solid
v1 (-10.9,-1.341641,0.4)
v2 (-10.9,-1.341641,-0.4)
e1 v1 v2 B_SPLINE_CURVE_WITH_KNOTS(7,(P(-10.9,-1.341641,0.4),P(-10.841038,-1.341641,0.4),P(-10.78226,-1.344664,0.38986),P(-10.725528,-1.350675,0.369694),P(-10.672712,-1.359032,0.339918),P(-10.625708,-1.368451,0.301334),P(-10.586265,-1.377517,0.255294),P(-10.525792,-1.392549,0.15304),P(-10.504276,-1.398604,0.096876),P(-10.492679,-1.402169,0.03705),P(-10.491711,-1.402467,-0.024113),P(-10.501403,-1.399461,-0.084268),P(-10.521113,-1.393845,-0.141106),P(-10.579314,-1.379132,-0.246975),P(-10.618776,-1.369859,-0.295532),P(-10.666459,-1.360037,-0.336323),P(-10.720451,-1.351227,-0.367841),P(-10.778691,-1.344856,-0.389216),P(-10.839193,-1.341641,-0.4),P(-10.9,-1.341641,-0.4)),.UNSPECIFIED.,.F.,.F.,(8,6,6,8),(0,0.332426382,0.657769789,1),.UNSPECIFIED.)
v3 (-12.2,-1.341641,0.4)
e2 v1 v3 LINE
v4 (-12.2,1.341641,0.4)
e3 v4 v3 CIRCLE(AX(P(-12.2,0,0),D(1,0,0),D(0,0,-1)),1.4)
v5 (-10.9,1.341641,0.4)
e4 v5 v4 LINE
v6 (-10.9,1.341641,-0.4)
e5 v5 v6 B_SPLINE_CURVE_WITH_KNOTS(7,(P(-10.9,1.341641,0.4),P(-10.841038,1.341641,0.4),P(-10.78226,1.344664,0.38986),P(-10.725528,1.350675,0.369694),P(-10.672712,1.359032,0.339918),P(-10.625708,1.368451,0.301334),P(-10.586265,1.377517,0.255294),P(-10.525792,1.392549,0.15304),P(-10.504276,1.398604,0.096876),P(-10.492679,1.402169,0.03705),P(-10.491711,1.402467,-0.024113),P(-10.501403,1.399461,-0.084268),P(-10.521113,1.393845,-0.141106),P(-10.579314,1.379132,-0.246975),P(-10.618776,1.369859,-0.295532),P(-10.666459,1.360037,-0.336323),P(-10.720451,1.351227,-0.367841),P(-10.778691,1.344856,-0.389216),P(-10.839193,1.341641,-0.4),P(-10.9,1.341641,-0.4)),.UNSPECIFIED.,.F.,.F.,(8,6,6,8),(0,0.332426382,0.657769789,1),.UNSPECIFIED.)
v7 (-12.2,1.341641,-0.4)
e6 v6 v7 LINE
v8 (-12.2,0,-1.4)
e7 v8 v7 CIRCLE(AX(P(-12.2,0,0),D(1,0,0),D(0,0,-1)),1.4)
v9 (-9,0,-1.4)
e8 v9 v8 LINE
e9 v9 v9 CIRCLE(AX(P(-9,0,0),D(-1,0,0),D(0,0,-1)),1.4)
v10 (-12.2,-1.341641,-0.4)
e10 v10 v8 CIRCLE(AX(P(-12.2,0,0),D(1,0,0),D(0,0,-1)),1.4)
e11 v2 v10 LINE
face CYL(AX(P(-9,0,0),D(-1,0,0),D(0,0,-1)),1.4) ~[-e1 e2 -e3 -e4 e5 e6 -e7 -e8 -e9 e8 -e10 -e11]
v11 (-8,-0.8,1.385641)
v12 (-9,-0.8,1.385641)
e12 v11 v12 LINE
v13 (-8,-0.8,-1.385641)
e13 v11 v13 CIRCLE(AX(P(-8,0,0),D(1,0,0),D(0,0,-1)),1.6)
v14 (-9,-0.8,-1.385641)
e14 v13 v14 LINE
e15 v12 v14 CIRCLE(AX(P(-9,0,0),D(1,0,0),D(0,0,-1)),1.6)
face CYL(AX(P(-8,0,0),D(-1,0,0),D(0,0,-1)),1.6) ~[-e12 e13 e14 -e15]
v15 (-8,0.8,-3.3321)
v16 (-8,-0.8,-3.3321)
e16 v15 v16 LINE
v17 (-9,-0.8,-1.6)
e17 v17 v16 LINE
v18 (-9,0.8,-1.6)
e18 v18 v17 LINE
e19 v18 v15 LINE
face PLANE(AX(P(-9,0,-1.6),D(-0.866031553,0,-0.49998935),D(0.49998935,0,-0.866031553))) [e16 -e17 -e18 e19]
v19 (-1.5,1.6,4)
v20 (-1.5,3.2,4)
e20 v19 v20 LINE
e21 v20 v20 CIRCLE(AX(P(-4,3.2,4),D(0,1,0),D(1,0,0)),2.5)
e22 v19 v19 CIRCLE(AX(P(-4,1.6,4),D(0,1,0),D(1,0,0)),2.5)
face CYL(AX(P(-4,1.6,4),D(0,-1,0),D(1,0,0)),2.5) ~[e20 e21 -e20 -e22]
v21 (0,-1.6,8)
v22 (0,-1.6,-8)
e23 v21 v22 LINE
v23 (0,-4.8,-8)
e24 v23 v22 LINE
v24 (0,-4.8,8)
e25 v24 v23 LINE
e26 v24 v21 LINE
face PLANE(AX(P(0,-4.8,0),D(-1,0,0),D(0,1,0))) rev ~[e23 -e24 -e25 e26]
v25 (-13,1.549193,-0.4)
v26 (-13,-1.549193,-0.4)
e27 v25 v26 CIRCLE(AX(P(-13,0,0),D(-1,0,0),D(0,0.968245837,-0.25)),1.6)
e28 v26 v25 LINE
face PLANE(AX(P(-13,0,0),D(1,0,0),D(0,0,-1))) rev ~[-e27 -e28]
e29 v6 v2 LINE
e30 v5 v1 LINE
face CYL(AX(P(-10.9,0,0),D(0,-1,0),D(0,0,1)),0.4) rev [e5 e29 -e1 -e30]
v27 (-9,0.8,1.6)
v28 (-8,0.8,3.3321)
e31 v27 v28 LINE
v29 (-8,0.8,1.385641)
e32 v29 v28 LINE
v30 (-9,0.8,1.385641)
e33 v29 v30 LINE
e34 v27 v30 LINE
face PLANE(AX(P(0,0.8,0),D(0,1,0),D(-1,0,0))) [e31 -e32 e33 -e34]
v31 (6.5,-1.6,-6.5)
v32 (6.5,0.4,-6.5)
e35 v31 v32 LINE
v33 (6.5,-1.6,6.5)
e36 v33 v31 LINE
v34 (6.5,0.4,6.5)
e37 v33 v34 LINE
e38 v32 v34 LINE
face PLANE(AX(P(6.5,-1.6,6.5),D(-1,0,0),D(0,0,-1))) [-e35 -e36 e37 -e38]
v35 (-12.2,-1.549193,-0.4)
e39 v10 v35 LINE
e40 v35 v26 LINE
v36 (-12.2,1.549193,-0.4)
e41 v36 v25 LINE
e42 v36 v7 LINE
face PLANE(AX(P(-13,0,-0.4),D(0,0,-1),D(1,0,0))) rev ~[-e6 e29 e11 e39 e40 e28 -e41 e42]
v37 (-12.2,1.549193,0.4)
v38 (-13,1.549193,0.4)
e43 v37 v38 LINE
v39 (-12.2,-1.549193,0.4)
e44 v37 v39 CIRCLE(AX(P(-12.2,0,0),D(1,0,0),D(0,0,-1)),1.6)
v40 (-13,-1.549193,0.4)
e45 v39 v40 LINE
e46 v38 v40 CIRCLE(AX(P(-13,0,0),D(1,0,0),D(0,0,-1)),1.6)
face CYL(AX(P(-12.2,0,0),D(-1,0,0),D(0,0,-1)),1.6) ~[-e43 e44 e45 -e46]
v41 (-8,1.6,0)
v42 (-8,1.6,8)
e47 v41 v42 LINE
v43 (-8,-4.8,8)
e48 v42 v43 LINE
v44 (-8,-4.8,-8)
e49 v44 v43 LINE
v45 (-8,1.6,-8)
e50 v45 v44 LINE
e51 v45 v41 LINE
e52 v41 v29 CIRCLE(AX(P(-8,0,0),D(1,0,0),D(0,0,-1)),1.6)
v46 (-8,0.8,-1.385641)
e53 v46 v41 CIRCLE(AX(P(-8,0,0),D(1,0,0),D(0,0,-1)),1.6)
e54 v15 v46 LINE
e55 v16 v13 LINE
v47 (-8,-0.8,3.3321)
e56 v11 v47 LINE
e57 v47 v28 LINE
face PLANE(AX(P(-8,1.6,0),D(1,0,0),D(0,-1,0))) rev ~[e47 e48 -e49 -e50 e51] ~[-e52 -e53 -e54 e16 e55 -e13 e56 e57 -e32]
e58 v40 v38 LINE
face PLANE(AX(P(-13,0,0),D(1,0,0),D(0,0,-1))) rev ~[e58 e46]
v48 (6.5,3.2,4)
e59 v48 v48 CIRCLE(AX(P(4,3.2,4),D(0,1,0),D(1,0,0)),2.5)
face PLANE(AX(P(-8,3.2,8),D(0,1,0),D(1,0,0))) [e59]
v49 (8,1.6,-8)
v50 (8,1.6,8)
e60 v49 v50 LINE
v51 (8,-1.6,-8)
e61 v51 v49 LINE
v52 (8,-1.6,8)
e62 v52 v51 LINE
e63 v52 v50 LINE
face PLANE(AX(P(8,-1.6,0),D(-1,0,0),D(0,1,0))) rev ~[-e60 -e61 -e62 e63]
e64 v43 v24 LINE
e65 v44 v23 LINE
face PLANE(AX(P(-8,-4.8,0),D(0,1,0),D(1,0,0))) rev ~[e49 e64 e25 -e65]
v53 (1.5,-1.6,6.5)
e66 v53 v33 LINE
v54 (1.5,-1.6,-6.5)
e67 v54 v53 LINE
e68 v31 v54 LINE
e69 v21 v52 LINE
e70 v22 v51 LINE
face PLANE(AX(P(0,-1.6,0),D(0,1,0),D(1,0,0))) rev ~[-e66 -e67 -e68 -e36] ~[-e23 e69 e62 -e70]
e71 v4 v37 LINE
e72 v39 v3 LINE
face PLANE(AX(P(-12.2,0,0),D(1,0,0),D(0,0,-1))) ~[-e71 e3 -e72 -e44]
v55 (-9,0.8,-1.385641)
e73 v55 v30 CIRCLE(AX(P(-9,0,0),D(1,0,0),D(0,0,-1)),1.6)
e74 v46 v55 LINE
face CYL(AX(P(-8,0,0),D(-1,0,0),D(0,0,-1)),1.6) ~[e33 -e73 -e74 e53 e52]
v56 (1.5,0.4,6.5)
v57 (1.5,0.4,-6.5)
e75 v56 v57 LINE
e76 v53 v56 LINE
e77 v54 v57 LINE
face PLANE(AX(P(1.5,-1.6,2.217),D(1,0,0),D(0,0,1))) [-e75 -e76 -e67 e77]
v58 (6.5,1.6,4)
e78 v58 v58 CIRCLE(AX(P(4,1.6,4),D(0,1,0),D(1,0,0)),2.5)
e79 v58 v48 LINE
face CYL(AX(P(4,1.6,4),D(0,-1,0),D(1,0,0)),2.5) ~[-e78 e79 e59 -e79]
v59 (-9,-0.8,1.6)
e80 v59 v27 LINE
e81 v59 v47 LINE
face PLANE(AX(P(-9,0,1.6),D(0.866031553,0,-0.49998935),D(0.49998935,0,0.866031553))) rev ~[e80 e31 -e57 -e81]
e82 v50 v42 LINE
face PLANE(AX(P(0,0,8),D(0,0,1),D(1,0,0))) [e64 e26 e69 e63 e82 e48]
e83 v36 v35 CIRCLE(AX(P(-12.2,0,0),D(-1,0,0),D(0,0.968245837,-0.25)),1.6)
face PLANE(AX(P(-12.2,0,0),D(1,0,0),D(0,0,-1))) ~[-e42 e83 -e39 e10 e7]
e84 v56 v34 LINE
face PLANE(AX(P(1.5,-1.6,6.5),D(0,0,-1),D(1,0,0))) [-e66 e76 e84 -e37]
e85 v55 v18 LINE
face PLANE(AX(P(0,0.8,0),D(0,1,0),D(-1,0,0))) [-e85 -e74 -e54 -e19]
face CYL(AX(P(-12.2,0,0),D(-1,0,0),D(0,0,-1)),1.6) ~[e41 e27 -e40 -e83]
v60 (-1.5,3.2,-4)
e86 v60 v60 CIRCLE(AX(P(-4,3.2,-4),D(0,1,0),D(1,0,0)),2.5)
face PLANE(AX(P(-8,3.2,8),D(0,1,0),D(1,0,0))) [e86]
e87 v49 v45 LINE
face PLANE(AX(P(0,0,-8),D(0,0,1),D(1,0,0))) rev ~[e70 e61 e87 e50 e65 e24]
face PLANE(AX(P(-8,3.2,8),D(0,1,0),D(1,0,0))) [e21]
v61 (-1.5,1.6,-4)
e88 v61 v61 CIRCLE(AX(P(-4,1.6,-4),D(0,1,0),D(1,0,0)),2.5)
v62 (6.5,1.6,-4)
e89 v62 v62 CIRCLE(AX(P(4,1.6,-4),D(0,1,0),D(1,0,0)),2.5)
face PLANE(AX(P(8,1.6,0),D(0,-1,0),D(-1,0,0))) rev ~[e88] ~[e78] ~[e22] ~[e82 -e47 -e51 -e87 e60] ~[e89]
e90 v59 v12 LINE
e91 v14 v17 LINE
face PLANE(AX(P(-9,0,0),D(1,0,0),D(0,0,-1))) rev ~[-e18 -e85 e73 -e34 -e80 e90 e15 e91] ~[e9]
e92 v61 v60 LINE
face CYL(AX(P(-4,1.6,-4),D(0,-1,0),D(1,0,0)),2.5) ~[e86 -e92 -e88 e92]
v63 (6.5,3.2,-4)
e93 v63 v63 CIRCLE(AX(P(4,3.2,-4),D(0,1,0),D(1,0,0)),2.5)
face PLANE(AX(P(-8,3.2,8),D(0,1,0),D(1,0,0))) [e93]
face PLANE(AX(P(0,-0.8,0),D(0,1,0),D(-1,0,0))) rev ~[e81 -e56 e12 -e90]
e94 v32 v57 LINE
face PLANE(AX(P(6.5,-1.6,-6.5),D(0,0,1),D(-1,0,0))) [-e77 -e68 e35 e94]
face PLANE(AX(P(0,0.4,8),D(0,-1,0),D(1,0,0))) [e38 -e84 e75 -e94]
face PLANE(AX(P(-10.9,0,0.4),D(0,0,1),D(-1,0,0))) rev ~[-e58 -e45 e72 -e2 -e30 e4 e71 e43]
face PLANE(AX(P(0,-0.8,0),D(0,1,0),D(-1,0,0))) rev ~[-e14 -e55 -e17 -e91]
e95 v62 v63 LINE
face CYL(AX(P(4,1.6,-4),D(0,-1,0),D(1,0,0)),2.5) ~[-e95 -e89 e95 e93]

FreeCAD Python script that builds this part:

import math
import FreeCAD as App
import Part
import Sketcher
from FreeCAD import Vector
Q = App.Units.Quantity

doc = App.newDocument("Part")
body = doc.addObject("PartDesign::Body", "Body")

sketch1 = body.newObject("Sketcher::SketchObject", "Sketch")
sketch1.AttachmentSupport = (doc.getObject("XY_Plane"), [""])
sketch1.MapMode = "FlatFace"
sketch1.addGeometry(Part.LineSegment(Vector(8, -1.6, 0), Vector(8, 1.6, 0)), False)
sketch1.addGeometry(Part.LineSegment(Vector(8, 1.6, 0), Vector(-8, 1.6, 0)), False)
sketch1.addGeometry(Part.LineSegment(Vector(-8, 1.6, 0), Vector(-8, -4.8, 0)), False)
sketch1.addGeometry(Part.LineSegment(Vector(-8, -4.8, 0), Vector(0, -4.8, 0)), False)
sketch1.addGeometry(Part.LineSegment(Vector(0, -4.8, 0), Vector(0, -1.6, 0)), False)
sketch1.addGeometry(Part.LineSegment(Vector(0, -1.6, 0), Vector(8, -1.6, 0)), False)
sketch1.addConstraint(Sketcher.Constraint("Coincident", 0, 2, 1, 1))
sketch1.addConstraint(Sketcher.Constraint("Coincident", 1, 2, 2, 1))
sketch1.addConstraint(Sketcher.Constraint("Coincident", 2, 2, 3, 1))
sketch1.addConstraint(Sketcher.Constraint("Coincident", 3, 2, 4, 1))
sketch1.addConstraint(Sketcher.Constraint("Coincident", 4, 2, 5, 1))
sketch1.addConstraint(Sketcher.Constraint("Coincident", 5, 2, 0, 1))
sketch1.addConstraint(Sketcher.Constraint("Vertical", 0))
sketch1.addConstraint(Sketcher.Constraint("Horizontal", 1))
sketch1.addConstraint(Sketcher.Constraint("Vertical", 2))
sketch1.addConstraint(Sketcher.Constraint("Horizontal", 3))
sketch1.addConstraint(Sketcher.Constraint("Vertical", 4))
sketch1.addConstraint(Sketcher.Constraint("Horizontal", 5))
sketch1.addConstraint(Sketcher.Constraint("Symmetric", 1, 2, 5, 2, -1, 1))
sketch1.addConstraint(Sketcher.Constraint("PointOnObject", 3, 2, -2))
sketch1.addConstraint(Sketcher.Constraint("Equal", 0, 4))
sketch1.addConstraint(Sketcher.Constraint("DistanceX", 1, 2, 1, 1, 16.0))
sketch1.addConstraint(Sketcher.Constraint("DistanceY", 0, 1, 0, 2, 3.2))
pad1 = body.newObject("PartDesign::Pad", "Pad")
pad1.Profile = sketch1
pad1.Length = 16
pad1.Midplane = True

sketch2 = body.newObject("Sketcher::SketchObject", "Sketch001")
sketch2.AttachmentSupport = (doc.getObject("XZ_Plane"), [""])
sketch2.MapMode = "FlatFace"
sketch2.AttachmentOffset = App.Placement(Vector(0, 0, -1.6), App.Rotation())
sketch2.addGeometry(Part.Circle(Vector(-4, -4, 0), Vector(0, 0, 1), 2.5), False)
sketch2.addGeometry(Part.Circle(Vector(4, -4, 0), Vector(0, 0, 1), 2.5), False)
sketch2.addGeometry(Part.Circle(Vector(4, 4, 0), Vector(0, 0, 1), 2.5), False)
sketch2.addGeometry(Part.Circle(Vector(-4, 4, 0), Vector(0, 0, 1), 2.5), False)
sketch2.addConstraint(Sketcher.Constraint("Equal", 0, 1))
sketch2.addConstraint(Sketcher.Constraint("Equal", 1, 2))
sketch2.addConstraint(Sketcher.Constraint("Equal", 2, 3))
sketch2.addConstraint(Sketcher.Constraint("Symmetric", 0, 3, 2, 3, -1, 1))
sketch2.addConstraint(Sketcher.Constraint("Symmetric", 1, 3, 3, 3, -1, 1))
sketch2.addConstraint(Sketcher.Constraint("Symmetric", 0, 3, 1, 3, -2))
sketch2.addConstraint(Sketcher.Constraint("Diameter", 0, 5.0))
sketch2.addConstraint(Sketcher.Constraint("DistanceX", 0, 3, 1, 3, 8.0))
sketch2.addConstraint(Sketcher.Constraint("DistanceY", 1, 3, 2, 3, 8.0))
pad2 = body.newObject("PartDesign::Pad", "Pad001")
pad2.Profile = sketch2
pad2.Length = 1.6
pad2.Reversed = True

sketch3 = body.newObject("Sketcher::SketchObject", "Sketch002")
sketch3.AttachmentSupport = (doc.getObject("XZ_Plane"), [""])
sketch3.MapMode = "FlatFace"
sketch3.addGeometry(Part.LineSegment(Vector(-13, 0, 0), Vector(-8, 0, 0)), False)
sketch3.addGeometry(Part.LineSegment(Vector(-8, 0, 0), Vector(-8, -1.6, 0)), False)
sketch3.addGeometry(Part.LineSegment(Vector(-8, -1.6, 0), Vector(-9, -1.6, 0)), False)
sketch3.addGeometry(Part.LineSegment(Vector(-9, -1.6, 0), Vector(-9, -1.4, 0)), False)
sketch3.addGeometry(Part.LineSegment(Vector(-9, -1.4, 0), Vector(-12.2, -1.4, 0)), False)
sketch3.addGeometry(Part.LineSegment(Vector(-12.2, -1.4, 0), Vector(-12.2, -1.6, 0)), False)
sketch3.addGeometry(Part.LineSegment(Vector(-12.2, -1.6, 0), Vector(-13, -1.6, 0)), False)
sketch3.addGeometry(Part.LineSegment(Vector(-13, -1.6, 0), Vector(-13, 0, 0)), False)
sketch3.addConstraint(Sketcher.Constraint("Coincident", 0, 2, 1, 1))
sketch3.addConstraint(Sketcher.Constraint("Coincident", 1, 2, 2, 1))
sketch3.addConstraint(Sketcher.Constraint("Coincident", 2, 2, 3, 1))
sketch3.addConstraint(Sketcher.Constraint("Coincident", 3, 2, 4, 1))
sketch3.addConstraint(Sketcher.Constraint("Coincident", 4, 2, 5, 1))
sketch3.addConstraint(Sketcher.Constraint("Coincident", 5, 2, 6, 1))
sketch3.addConstraint(Sketcher.Constraint("Coincident", 6, 2, 7, 1))
sketch3.addConstraint(Sketcher.Constraint("Coincident", 7, 2, 0, 1))
sketch3.addConstraint(Sketcher.Constraint("Horizontal", 0))
sketch3.addConstraint(Sketcher.Constraint("Vertical", 1))
sketch3.addConstraint(Sketcher.Constraint("Horizontal", 2))
sketch3.addConstraint(Sketcher.Constraint("Vertical", 3))
sketch3.addConstraint(Sketcher.Constraint("Horizontal", 4))
sketch3.addConstraint(Sketcher.Constraint("Vertical", 5))
sketch3.addConstraint(Sketcher.Constraint("Horizontal", 6))
sketch3.addConstraint(Sketcher.Constraint("Vertical", 7))
sketch3.addConstraint(Sketcher.Constraint("PointOnObject", 0, 2, -1))
sketch3.addConstraint(Sketcher.Constraint("Horizontal", 2, 2, 5, 2))
sketch3.addConstraint(Sketcher.Constraint("DistanceX", 0, 1, 0, 2, 5.0))
sketch3.addConstraint(Sketcher.Constraint("DistanceX", 4, 2, 4, 1, 3.2))
sketch3.addConstraint(Sketcher.Constraint("DistanceX", 6, 2, 6, 1, 0.8))
sketch3.addConstraint(Sketcher.Constraint("DistanceY", 1, 2, 1, 1, 1.6))
sketch3.addConstraint(Sketcher.Constraint("DistanceY", 3, 1, 3, 2, 0.2))
sketch3.addConstraint(Sketcher.Constraint("DistanceX", 0, 2, -1, 1, 8.0))
revolution = body.newObject("PartDesign::Revolution", "Revolution")
revolution.Profile = sketch3
revolution.ReferenceAxis = (sketch3, ["H_Axis"])
revolution.Angle = 360

sketch4 = body.newObject("Sketcher::SketchObject", "Sketch003")
sketch4.AttachmentSupport = (doc.getObject("XZ_Plane"), [""])
sketch4.MapMode = "FlatFace"
sketch4.addGeometry(Part.LineSegment(Vector(-9, -1.6, 0), Vector(-9, 1.6, 0)), False)
sketch4.addGeometry(Part.LineSegment(Vector(-9, 1.6, 0), Vector(-8, 3.3, 0)), False)
sketch4.addGeometry(Part.LineSegment(Vector(-8, 3.3, 0), Vector(-8, -3.3, 0)), False)
sketch4.addGeometry(Part.LineSegment(Vector(-8, -3.3, 0), Vector(-9, -1.6, 0)), False)
sketch4.addConstraint(Sketcher.Constraint("Coincident", 0, 2, 1, 1))
sketch4.addConstraint(Sketcher.Constraint("Coincident", 1, 2, 2, 1))
sketch4.addConstraint(Sketcher.Constraint("Coincident", 2, 2, 3, 1))
sketch4.addConstraint(Sketcher.Constraint("Coincident", 3, 2, 0, 1))
sketch4.addConstraint(Sketcher.Constraint("Vertical", 0))
sketch4.addConstraint(Sketcher.Constraint("Vertical", 2))
sketch4.addConstraint(Sketcher.Constraint("Equal", 1, 3))
sketch4.addConstraint(Sketcher.Constraint("Angle", 1, Q("60.0007 deg")))
sketch4.addConstraint(Sketcher.Constraint("Distance", 1, 2.0))
sketch4.addConstraint(Sketcher.Constraint("DistanceY", 0, 1, 0, 2, 3.2))
sketch4.addConstraint(Sketcher.Constraint("DistanceX", 0, 2, -1, 1, 9.0))
sketch4.addConstraint(Sketcher.Constraint("DistanceY", -1, 1, 0, 2, 1.6))
pad3 = body.newObject("PartDesign::Pad", "Pad002")
pad3.Profile = sketch4
pad3.Length = 1.6
pad3.Midplane = True

sketch5 = body.newObject("Sketcher::SketchObject", "Sketch004")
sketch5.AttachmentSupport = (doc.getObject("XZ_Plane"), [""])
sketch5.MapMode = "FlatFace"
sketch5.addGeometry(Part.LineSegment(Vector(-10.9, -0.4, 0), Vector(-13, -0.4, 0)), False)
sketch5.addGeometry(Part.LineSegment(Vector(-13, -0.4, 0), Vector(-13, 0.4, 0)), False)
sketch5.addGeometry(Part.LineSegment(Vector(-13, 0.4, 0), Vector(-10.9, 0.4, 0)), False)
sketch5.addGeometry(Part.ArcOfCircle(Part.Circle(Vector(-10.9, 0, 0), Vector(0, 0, 1), 0.4), math.radians(-90), math.radians(90)), False)
sketch5.addConstraint(Sketcher.Constraint("Coincident", 0, 2, 1, 1))
sketch5.addConstraint(Sketcher.Constraint("Coincident", 1, 2, 2, 1))
sketch5.addConstraint(Sketcher.Constraint("Tangent", 2, 2, 3, 2))
sketch5.addConstraint(Sketcher.Constraint("Tangent", 3, 1, 0, 1))
sketch5.addConstraint(Sketcher.Constraint("Horizontal", 0))
sketch5.addConstraint(Sketcher.Constraint("Vertical", 1))
sketch5.addConstraint(Sketcher.Constraint("Horizontal", 2))
sketch5.addConstraint(Sketcher.Constraint("PointOnObject", 3, 3, -1))
sketch5.addConstraint(Sketcher.Constraint("Radius", 3, 0.4))
sketch5.addConstraint(Sketcher.Constraint("DistanceX", 0, 2, 0, 1, 2.1))
sketch5.addConstraint(Sketcher.Constraint("DistanceX", 0, 2, -1, 1, 13.0))
pocket1 = body.newObject("PartDesign::Pocket", "Pocket")
pocket1.Profile = sketch5
pocket1.Type = "ThroughAll"
pocket1.Midplane = True

sketch6 = body.newObject("Sketcher::SketchObject", "Sketch005")
sketch6.AttachmentSupport = (doc.getObject("XZ_Plane"), [""])
sketch6.MapMode = "FlatFace"
sketch6.AttachmentOffset = App.Placement(Vector(0, 0, 1.6), App.Rotation())
sketch6.addGeometry(Part.LineSegment(Vector(6, 6, 0), Vector(2, 6, 0)), False)
sketch6.addGeometry(Part.LineSegment(Vector(2, 6, 0), Vector(2, -6, 0)), False)
sketch6.addGeometry(Part.LineSegment(Vector(2, -6, 0), Vector(6, -6, 0)), False)
sketch6.addGeometry(Part.LineSegment(Vector(6, -6, 0), Vector(6, 6, 0)), False)
sketch6.addConstraint(Sketcher.Constraint("Coincident", 0, 2, 1, 1))
sketch6.addConstraint(Sketcher.Constraint("Coincident", 1, 2, 2, 1))
sketch6.addConstraint(Sketcher.Constraint("Coincident", 2, 2, 3, 1))
sketch6.addConstraint(Sketcher.Constraint("Coincident", 3, 2, 0, 1))
sketch6.addConstraint(Sketcher.Constraint("Horizontal", 0))
sketch6.addConstraint(Sketcher.Constraint("Vertical", 1))
sketch6.addConstraint(Sketcher.Constraint("Horizontal", 2))
sketch6.addConstraint(Sketcher.Constraint("Vertical", 3))
sketch6.addConstraint(Sketcher.Constraint("DistanceX", 0, 2, 0, 1, 5.0))
sketch6.addConstraint(Sketcher.Constraint("DistanceY", 1, 2, 1, 1, 13.0))
sketch6.addConstraint(Sketcher.Constraint("DistanceX", -1, 1, 0, 2, 1.5))
sketch6.addConstraint(Sketcher.Constraint("DistanceY", -1, 1, 0, 2, 6.5))
pocket2 = body.newObject("PartDesign::Pocket", "Pocket001")
pocket2.Profile = sketch6
pocket2.Length = 2

doc.recompute()
